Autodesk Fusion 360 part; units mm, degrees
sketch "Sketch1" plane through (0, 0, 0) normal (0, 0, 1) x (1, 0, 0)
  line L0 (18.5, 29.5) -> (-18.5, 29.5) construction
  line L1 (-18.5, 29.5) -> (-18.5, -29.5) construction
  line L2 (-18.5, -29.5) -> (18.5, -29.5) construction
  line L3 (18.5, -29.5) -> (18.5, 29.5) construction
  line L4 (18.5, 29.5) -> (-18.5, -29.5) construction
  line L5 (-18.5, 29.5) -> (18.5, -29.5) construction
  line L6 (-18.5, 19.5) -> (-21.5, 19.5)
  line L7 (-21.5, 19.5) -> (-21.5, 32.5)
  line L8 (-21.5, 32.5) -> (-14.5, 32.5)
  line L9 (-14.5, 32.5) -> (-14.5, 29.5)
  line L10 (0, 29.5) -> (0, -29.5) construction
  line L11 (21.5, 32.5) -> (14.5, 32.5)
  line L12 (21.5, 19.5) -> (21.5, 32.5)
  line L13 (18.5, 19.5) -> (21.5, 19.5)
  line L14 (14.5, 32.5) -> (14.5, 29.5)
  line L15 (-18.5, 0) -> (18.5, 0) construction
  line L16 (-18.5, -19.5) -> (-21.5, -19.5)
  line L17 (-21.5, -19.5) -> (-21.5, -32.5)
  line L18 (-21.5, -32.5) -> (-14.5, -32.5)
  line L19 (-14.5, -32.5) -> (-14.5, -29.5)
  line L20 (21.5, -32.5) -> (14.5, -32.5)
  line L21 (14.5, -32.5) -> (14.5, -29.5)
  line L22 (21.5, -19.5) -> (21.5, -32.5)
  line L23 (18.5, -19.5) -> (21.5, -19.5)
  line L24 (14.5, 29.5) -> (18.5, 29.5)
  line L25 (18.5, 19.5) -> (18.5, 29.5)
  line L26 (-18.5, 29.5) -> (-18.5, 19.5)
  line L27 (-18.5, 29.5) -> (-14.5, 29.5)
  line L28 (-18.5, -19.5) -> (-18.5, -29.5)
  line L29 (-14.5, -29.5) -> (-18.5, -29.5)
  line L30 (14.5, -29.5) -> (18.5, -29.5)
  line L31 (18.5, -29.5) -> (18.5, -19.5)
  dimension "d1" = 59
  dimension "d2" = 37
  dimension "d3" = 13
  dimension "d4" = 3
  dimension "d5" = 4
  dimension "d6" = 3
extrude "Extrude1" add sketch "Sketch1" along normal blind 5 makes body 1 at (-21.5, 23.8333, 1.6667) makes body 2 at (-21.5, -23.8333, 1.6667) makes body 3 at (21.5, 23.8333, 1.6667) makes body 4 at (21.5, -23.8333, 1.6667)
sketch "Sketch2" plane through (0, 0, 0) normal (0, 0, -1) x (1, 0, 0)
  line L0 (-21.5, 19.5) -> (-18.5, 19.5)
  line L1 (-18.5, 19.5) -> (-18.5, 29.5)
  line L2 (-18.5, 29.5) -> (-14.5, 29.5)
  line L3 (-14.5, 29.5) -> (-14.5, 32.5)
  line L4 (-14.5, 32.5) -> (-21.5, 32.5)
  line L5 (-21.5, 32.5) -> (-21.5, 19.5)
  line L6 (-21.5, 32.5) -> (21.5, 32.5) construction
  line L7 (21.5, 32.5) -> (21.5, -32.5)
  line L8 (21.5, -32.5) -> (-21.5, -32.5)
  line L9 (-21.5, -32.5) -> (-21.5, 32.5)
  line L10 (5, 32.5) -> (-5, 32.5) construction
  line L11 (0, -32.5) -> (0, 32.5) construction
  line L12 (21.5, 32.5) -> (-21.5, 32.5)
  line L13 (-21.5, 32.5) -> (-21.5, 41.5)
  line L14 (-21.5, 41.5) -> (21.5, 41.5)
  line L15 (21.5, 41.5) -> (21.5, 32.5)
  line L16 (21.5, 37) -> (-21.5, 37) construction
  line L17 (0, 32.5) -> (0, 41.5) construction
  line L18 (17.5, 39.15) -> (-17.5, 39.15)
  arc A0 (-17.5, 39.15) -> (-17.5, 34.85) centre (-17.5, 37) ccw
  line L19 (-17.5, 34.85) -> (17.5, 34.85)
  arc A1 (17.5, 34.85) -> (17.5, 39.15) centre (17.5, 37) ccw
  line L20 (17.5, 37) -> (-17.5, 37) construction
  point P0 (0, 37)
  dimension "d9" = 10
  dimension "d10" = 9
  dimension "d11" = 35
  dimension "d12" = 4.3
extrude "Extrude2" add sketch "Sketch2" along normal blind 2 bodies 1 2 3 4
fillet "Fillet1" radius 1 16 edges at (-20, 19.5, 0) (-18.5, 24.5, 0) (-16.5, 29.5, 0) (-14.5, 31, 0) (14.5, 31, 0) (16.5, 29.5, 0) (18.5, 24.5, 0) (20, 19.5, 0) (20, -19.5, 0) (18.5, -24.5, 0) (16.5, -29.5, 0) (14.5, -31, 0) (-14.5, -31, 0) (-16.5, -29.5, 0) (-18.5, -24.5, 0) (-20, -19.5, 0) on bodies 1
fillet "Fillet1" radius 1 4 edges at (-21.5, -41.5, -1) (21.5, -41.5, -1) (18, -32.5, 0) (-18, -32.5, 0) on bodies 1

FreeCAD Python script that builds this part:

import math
import FreeCAD as App
import Part
import Sketcher
from FreeCAD import Vector
Q = App.Units.Quantity


def edges_at(feature, points):
    """Names of the edges that pass closest to the given points."""
    edges = feature.Shape.Edges
    near = lambda p: min(range(len(edges)), key=lambda i: edges[i].distToShape(Part.Vertex(*p))[0])
    return sorted({f"Edge{near(p) + 1}" for p in points})

doc = App.newDocument("Part")
body = doc.addObject("PartDesign::Body", "Body")
body.AllowCompound = True

sketch1 = body.newObject("Sketcher::SketchObject", "Sketch")
sketch1.AttachmentSupport = (doc.getObject("XY_Plane"), [""])
sketch1.MapMode = "FlatFace"
sketch1.addGeometry(Part.LineSegment(Vector(-21.5, 19.5, 0), Vector(-18.5, 19.5, 0)), False)
sketch1.addGeometry(Part.LineSegment(Vector(-18.5, 19.5, 0), Vector(-18.5, 29.5, 0)), False)
sketch1.addGeometry(Part.LineSegment(Vector(-18.5, 29.5, 0), Vector(-14.5, 29.5, 0)), False)
sketch1.addGeometry(Part.LineSegment(Vector(-14.5, 29.5, 0), Vector(-14.5, 32.5, 0)), False)
sketch1.addGeometry(Part.LineSegment(Vector(-14.5, 32.5, 0), Vector(-21.5, 32.5, 0)), False)
sketch1.addGeometry(Part.LineSegment(Vector(-21.5, 32.5, 0), Vector(-21.5, 19.5, 0)), False)
sketch1.addGeometry(Part.LineSegment(Vector(21.5, 19.5, 0), Vector(21.5, 32.5, 0)), False)
sketch1.addGeometry(Part.LineSegment(Vector(21.5, 32.5, 0), Vector(14.5, 32.5, 0)), False)
sketch1.addGeometry(Part.LineSegment(Vector(14.5, 32.5, 0), Vector(14.5, 29.5, 0)), False)
sketch1.addGeometry(Part.LineSegment(Vector(14.5, 29.5, 0), Vector(18.5, 29.5, 0)), False)
sketch1.addGeometry(Part.LineSegment(Vector(18.5, 29.5, 0), Vector(18.5, 19.5, 0)), False)
sketch1.addGeometry(Part.LineSegment(Vector(18.5, 19.5, 0), Vector(21.5, 19.5, 0)), False)
sketch1.addGeometry(Part.LineSegment(Vector(-18.5, -29.5, 0), Vector(-18.5, -19.5, 0)), False)
sketch1.addGeometry(Part.LineSegment(Vector(-18.5, -19.5, 0), Vector(-21.5, -19.5, 0)), False)
sketch1.addGeometry(Part.LineSegment(Vector(-21.5, -19.5, 0), Vector(-21.5, -32.5, 0)), False)
sketch1.addGeometry(Part.LineSegment(Vector(-21.5, -32.5, 0), Vector(-14.5, -32.5, 0)), False)
sketch1.addGeometry(Part.LineSegment(Vector(-14.5, -32.5, 0), Vector(-14.5, -29.5, 0)), False)
sketch1.addGeometry(Part.LineSegment(Vector(-14.5, -29.5, 0), Vector(-18.5, -29.5, 0)), False)
sketch1.addGeometry(Part.LineSegment(Vector(14.5, -32.5, 0), Vector(21.5, -32.5, 0)), False)
sketch1.addGeometry(Part.LineSegment(Vector(21.5, -32.5, 0), Vector(21.5, -19.5, 0)), False)
sketch1.addGeometry(Part.LineSegment(Vector(21.5, -19.5, 0), Vector(18.5, -19.5, 0)), False)
sketch1.addGeometry(Part.LineSegment(Vector(18.5, -19.5, 0), Vector(18.5, -29.5, 0)), False)
sketch1.addGeometry(Part.LineSegment(Vector(18.5, -29.5, 0), Vector(14.5, -29.5, 0)), False)
sketch1.addGeometry(Part.LineSegment(Vector(14.5, -29.5, 0), Vector(14.5, -32.5, 0)), False)
sketch1.addConstraint(Sketcher.Constraint("Coincident", 0, 2, 1, 1))
sketch1.addConstraint(Sketcher.Constraint("Coincident", 1, 2, 2, 1))
sketch1.addConstraint(Sketcher.Constraint("Coincident", 2, 2, 3, 1))
sketch1.addConstraint(Sketcher.Constraint("Coincident", 3, 2, 4, 1))
sketch1.addConstraint(Sketcher.Constraint("Coincident", 4, 2, 5, 1))
sketch1.addConstraint(Sketcher.Constraint("Coincident", 5, 2, 0, 1))
sketch1.addConstraint(Sketcher.Constraint("Coincident", 6, 2, 7, 1))
sketch1.addConstraint(Sketcher.Constraint("Coincident", 7, 2, 8, 1))
sketch1.addConstraint(Sketcher.Constraint("Coincident", 8, 2, 9, 1))
sketch1.addConstraint(Sketcher.Constraint("Coincident", 9, 2, 10, 1))
sketch1.addConstraint(Sketcher.Constraint("Coincident", 10, 2, 11, 1))
sketch1.addConstraint(Sketcher.Constraint("Coincident", 11, 2, 6, 1))
sketch1.addConstraint(Sketcher.Constraint("Coincident", 12, 2, 13, 1))
sketch1.addConstraint(Sketcher.Constraint("Coincident", 13, 2, 14, 1))
sketch1.addConstraint(Sketcher.Constraint("Coincident", 14, 2, 15, 1))
sketch1.addConstraint(Sketcher.Constraint("Coincident", 15, 2, 16, 1))
sketch1.addConstraint(Sketcher.Constraint("Coincident", 16, 2, 17, 1))
sketch1.addConstraint(Sketcher.Constraint("Coincident", 17, 2, 12, 1))
sketch1.addConstraint(Sketcher.Constraint("Coincident", 18, 2, 19, 1))
sketch1.addConstraint(Sketcher.Constraint("Coincident", 19, 2, 20, 1))
sketch1.addConstraint(Sketcher.Constraint("Coincident", 20, 2, 21, 1))
sketch1.addConstraint(Sketcher.Constraint("Coincident", 21, 2, 22, 1))
sketch1.addConstraint(Sketcher.Constraint("Coincident", 22, 2, 23, 1))
sketch1.addConstraint(Sketcher.Constraint("Coincident", 23, 2, 18, 1))
sketch1.addConstraint(Sketcher.Constraint("Horizontal", 0))
sketch1.addConstraint(Sketcher.Constraint("Vertical", 1))
sketch1.addConstraint(Sketcher.Constraint("Horizontal", 2))
sketch1.addConstraint(Sketcher.Constraint("Vertical", 3))
sketch1.addConstraint(Sketcher.Constraint("Horizontal", 4))
sketch1.addConstraint(Sketcher.Constraint("Vertical", 5))
sketch1.addConstraint(Sketcher.Constraint("Vertical", 6))
sketch1.addConstraint(Sketcher.Constraint("Horizontal", 7))
sketch1.addConstraint(Sketcher.Constraint("Vertical", 8))
sketch1.addConstraint(Sketcher.Constraint("Horizontal", 9))
sketch1.addConstraint(Sketcher.Constraint("Vertical", 10))
sketch1.addConstraint(Sketcher.Constraint("Horizontal", 11))
sketch1.addConstraint(Sketcher.Constraint("Vertical", 12))
sketch1.addConstraint(Sketcher.Constraint("Horizontal", 13))
sketch1.addConstraint(Sketcher.Constraint("Vertical", 14))
sketch1.addConstraint(Sketcher.Constraint("Horizontal", 15))
sketch1.addConstraint(Sketcher.Constraint("Vertical", 16))
sketch1.addConstraint(Sketcher.Constraint("Horizontal", 17))
sketch1.addConstraint(Sketcher.Constraint("Horizontal", 18))
sketch1.addConstraint(Sketcher.Constraint("Vertical", 19))
sketch1.addConstraint(Sketcher.Constraint("Horizontal", 20))
sketch1.addConstraint(Sketcher.Constraint("Vertical", 21))
sketch1.addConstraint(Sketcher.Constraint("Horizontal", 22))
sketch1.addConstraint(Sketcher.Constraint("Vertical", 23))
sketch1.addConstraint(Sketcher.Constraint("Symmetric", 10, 2, 12, 2, -1, 1))
sketch1.addConstraint(Sketcher.Constraint("Symmetric", 6, 2, 14, 2, -1, 1))
sketch1.addConstraint(Sketcher.Constraint("Symmetric", 8, 2, 16, 2, -1, 1))
sketch1.addConstraint(Sketcher.Constraint("Symmetric", 4, 2, 18, 2, -1, 1))
sketch1.addConstraint(Sketcher.Constraint("Symmetric", 0, 2, 20, 2, -1, 1))
sketch1.addConstraint(Sketcher.Constraint("Symmetric", 2, 2, 22, 2, -1, 1))
sketch1.addConstraint(Sketcher.Constraint("Symmetric", 4, 2, 6, 2, -2))
sketch1.addConstraint(Sketcher.Constraint("Symmetric", 2, 2, 8, 2, -2))
sketch1.addConstraint(Sketcher.Constraint("Symmetric", 0, 2, 10, 2, -2))
sketch1.addConstraint(Sketcher.Constraint("Equal", 20, 3))
sketch1.addConstraint(Sketcher.Constraint("DistanceX", 0, 1, 0, 2, Q("3 mm")))
sketch1.addConstraint(Sketcher.Constraint("DistanceX", 2, 1, 2, 2, Q("4 mm")))
sketch1.addConstraint(Sketcher.Constraint("DistanceY", 5, 2, 5, 1, Q("13 mm")))
sketch1.addConstraint(Sketcher.Constraint("DistanceX", 12, 2, 20, 2, Q("37 mm")))
sketch1.addConstraint(Sketcher.Constraint("DistanceY", 12, 2, 0, 2, Q("39 mm")))
pad1 = body.newObject("PartDesign::Pad", "Pad")
pad1.Profile = sketch1
pad1.Length = 5

sketch2 = body.newObject("Sketcher::SketchObject", "Sketch001")
sketch2.AttachmentSupport = (doc.getObject("XY_Plane"), [""])
sketch2.MapMode = "FlatFace"
sketch2.addGeometry(Part.LineSegment(Vector(-21.5, 32.5, 0), Vector(21.5, 32.5, 0)), False)
sketch2.addGeometry(Part.LineSegment(Vector(21.5, 32.5, 0), Vector(21.5, -41.5, 0)), False)
sketch2.addGeometry(Part.LineSegment(Vector(21.5, -41.5, 0), Vector(-21.5, -41.5, 0)), False)
sketch2.addGeometry(Part.LineSegment(Vector(-21.5, -41.5, 0), Vector(-21.5, 32.5, 0)), False)
sketch2.addGeometry(Part.ArcOfCircle(Part.Circle(Vector(17.5, -37, 0), Vector(0, 0, 1), 2.1), math.radians(-90), math.radians(90)), False)
sketch2.addGeometry(Part.LineSegment(Vector(17.5, -34.9, 0), Vector(-17.5, -34.9, 0)), False)
sketch2.addGeometry(Part.ArcOfCircle(Part.Circle(Vector(-17.5, -37, 0), Vector(0, 0, 1), 2.1), math.radians(90), math.radians(270)), False)
sketch2.addGeometry(Part.LineSegment(Vector(-17.5, -39.1, 0), Vector(17.5, -39.1, 0)), False)
sketch2.addConstraint(Sketcher.Constraint("Coincident", 0, 2, 1, 1))
sketch2.addConstraint(Sketcher.Constraint("Coincident", 1, 2, 2, 1))
sketch2.addConstraint(Sketcher.Constraint("Coincident", 2, 2, 3, 1))
sketch2.addConstraint(Sketcher.Constraint("Coincident", 3, 2, 0, 1))
sketch2.addConstraint(Sketcher.Constraint("Tangent", 4, 2, 5, 1))
sketch2.addConstraint(Sketcher.Constraint("Tangent", 5, 2, 6, 1))
sketch2.addConstraint(Sketcher.Constraint("Tangent", 6, 2, 7, 1))
sketch2.addConstraint(Sketcher.Constraint("Tangent", 7, 2, 4, 1))
sketch2.addConstraint(Sketcher.Constraint("Horizontal", 0))
sketch2.addConstraint(Sketcher.Constraint("Vertical", 1))
sketch2.addConstraint(Sketcher.Constraint("Horizontal", 2))
sketch2.addConstraint(Sketcher.Constraint("Vertical", 3))
sketch2.addConstraint(Sketcher.Constraint("Horizontal", 5))
sketch2.addConstraint(Sketcher.Constraint("Horizontal", 7))
sketch2.addConstraint(Sketcher.Constraint("DistanceX", 5, 2, 5, 1, Q("35 mm")))
sketch2.addConstraint(Sketcher.Constraint("Radius", 4, Q("2.15 mm")))
sketch2.addConstraint(Sketcher.Constraint("DistanceX", 0, 1, 0, 2, Q("43 mm")))
sketch2.addConstraint(Sketcher.Constraint("DistanceY", 1, 2, 1, 1, Q("74 mm")))
sketch2.addConstraint(Sketcher.Constraint("DistanceY", 4, 3, -1, 1, Q("37 mm")))
sketch2.addConstraint(Sketcher.Constraint("DistanceX", 4, 3, 0, 2, Q("4 mm")))
sketch2.addConstraint(Sketcher.Constraint("DistanceX", -1, 1, 4, 3, Q("17.5 mm")))
sketch2.addConstraint(Sketcher.Constraint("DistanceY", -1, 1, 0, 2, Q("32.5 mm")))
pad2 = body.newObject("PartDesign::Pad", "Pad001")
pad2.Profile = sketch2
pad2.Length = 2
pad2.Reversed = True
doc.recompute()

fillet = body.newObject("PartDesign::Fillet", "Fillet")
fillet.Base = (pad2, edges_at(pad2, [
    (-20, 19.5, 0),
    (-18.5, 24.5, 0),
    (-16.5, 29.5, 0),
    (-14.5, 31, 0),
    (14.5, 31, 0),
    (16.5, 29.5, 0),
    (18.5, 24.5, 0),
    (20, 19.5, 0),
    (20, -19.5, 0),
    (18.5, -24.5, 0),
    (16.5, -29.5, 0),
    (14.5, -31, 0),
    (-14.5, -31, 0),
    (-16.5, -29.5, 0),
    (-18.5, -24.5, 0),
    (-20, -19.5, 0),
]))
fillet.Radius = 1
doc.recompute()

fillet2 = body.newObject("PartDesign::Fillet", "Fillet001")
fillet2.Base = (fillet, edges_at(fillet, [
    (-21.5, -41.5, -1),
    (21.5, -41.5, -1),
    (18, -32.5, 0),
    (-18, -32.5, 0),
]))
fillet2.Radius = 1

doc.recompute()
